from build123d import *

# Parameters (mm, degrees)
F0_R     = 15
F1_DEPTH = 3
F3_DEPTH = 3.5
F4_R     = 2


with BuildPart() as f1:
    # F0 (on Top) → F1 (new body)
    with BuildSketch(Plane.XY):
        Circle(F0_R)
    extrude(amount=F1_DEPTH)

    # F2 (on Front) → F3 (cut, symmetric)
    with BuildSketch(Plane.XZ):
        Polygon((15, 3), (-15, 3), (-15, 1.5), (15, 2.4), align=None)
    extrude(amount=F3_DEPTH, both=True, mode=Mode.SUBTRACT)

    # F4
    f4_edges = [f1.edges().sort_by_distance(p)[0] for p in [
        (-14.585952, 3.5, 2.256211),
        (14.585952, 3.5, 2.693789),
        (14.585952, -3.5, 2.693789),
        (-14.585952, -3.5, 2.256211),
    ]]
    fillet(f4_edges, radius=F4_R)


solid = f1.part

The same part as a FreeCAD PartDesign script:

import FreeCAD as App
import Part
import Sketcher
from FreeCAD import Vector


def edges_at(feature, points):
    """Names of the edges that pass closest to the given points."""
    edges = feature.Shape.Edges
    near = lambda p: min(range(len(edges)), key=lambda i: edges[i].distToShape(Part.Vertex(*p))[0])
    return sorted({f"Edge{near(p) + 1}" for p in points})


def add_polygon(sketch, points):
    """Adds a closed chain of lines whose ends are joined by coincident constraints."""
    first, n = sketch.GeometryCount, len(points)
    for a, b in zip(points, points[1:] + points[:1]):
        sketch.addGeometry(Part.LineSegment(App.Vector(*a, 0), App.Vector(*b, 0)), False)
    for i in range(n):
        sketch.addConstraint(Sketcher.Constraint("Coincident", first + i, 2, first + (i + 1) % n, 1))

doc = App.newDocument("Part")
body = doc.addObject("PartDesign::Body", "Body")

# Sketch on XY plane
sketch1 = doc.addObject("Sketcher::SketchObject", "Sketch")
body.addObject(sketch1)
sketch1.AttachmentSupport = (doc.XY_Plane, [""])
sketch1.MapMode = "FlatFace"
sketch1.addGeometry(Part.Circle(Vector(0, 0, 0), Vector(0, 0, 1), 15), False)
sketch1.addConstraint(Sketcher.Constraint("Coincident", 0, 3, -1, 1))
sketch1.addConstraint(Sketcher.Constraint("Diameter", 0, 30.0))
pad1 = doc.addObject("PartDesign::Pad", "Pad")
body.addObject(pad1)
pad1.Profile = sketch1
pad1.Length = 3

# Sketch on XZ plane
sketch2 = doc.addObject("Sketcher::SketchObject", "Sketch001")
body.addObject(sketch2)
sketch2.AttachmentSupport = (doc.XZ_Plane, [""])
sketch2.MapMode = "FlatFace"
add_polygon(sketch2, [(15, 3), (-15, 3), (-15, 1.5), (15, 2.4)])  # lines 0-3
sketch2.addConstraint(Sketcher.Constraint("Horizontal", 0))
sketch2.addConstraint(Sketcher.Constraint("Vertical", 1))
sketch2.addConstraint(Sketcher.Constraint("Vertical", 3))
sketch2.addConstraint(Sketcher.Constraint("DistanceX", 0, 2, 0, 1, 30.0))
sketch2.addConstraint(Sketcher.Constraint("DistanceY", 1, 2, 1, 1, 1.5))
sketch2.addConstraint(Sketcher.Constraint("DistanceY", 3, 1, 3, 2, 0.6))
sketch2.addConstraint(Sketcher.Constraint("DistanceX", 0, 2, -1, 1, 15.0))
sketch2.addConstraint(Sketcher.Constraint("DistanceY", -1, 1, 0, 2, 3.0))
pocket1 = doc.addObject("PartDesign::Pocket", "Pocket")
body.addObject(pocket1)
pocket1.Profile = sketch2
pocket1.Length = 7
pocket1.Midplane = True
doc.recompute()

fillet = doc.addObject("PartDesign::Fillet", "Fillet")
body.addObject(fillet)
fillet.Base = (pocket1, edges_at(pocket1, [
    (-14.586, 3.5, 2.256),
    (14.586, 3.5, 2.694),
    (14.586, -3.5, 2.694),
    (-14.586, -3.5, 2.256),
]))
fillet.Radius = 2

doc.recompute()
